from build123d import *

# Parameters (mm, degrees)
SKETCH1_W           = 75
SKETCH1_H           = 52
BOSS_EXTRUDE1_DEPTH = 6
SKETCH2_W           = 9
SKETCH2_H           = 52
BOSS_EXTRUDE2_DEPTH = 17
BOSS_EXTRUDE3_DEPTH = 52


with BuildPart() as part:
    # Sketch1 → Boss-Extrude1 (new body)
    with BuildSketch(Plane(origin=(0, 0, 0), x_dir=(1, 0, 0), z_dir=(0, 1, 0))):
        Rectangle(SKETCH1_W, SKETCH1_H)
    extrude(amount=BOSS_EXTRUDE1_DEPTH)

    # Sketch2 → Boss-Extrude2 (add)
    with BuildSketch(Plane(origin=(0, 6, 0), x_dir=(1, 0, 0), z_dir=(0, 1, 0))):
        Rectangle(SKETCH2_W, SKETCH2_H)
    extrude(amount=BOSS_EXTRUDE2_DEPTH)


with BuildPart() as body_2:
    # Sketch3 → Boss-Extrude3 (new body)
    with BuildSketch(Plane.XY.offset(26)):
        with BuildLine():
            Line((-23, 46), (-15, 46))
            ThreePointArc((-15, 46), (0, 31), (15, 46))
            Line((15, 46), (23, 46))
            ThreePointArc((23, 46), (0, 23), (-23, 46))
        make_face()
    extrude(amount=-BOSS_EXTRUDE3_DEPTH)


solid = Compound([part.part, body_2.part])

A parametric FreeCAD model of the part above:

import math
import FreeCAD as App
import Part
import Sketcher

V = App.Vector

doc = App.newDocument("Part")
body = doc.addObject("PartDesign::Body", "Body")

# Sketch on XZ plane
sketch1 = body.newObject("Sketcher::SketchObject", "Sketch")
sketch1.AttachmentSupport = (doc.getObject("XZ_Plane"), [""])
sketch1.MapMode = "FlatFace"
sketch1.addGeometry(Part.LineSegment(V(-38, -26, 0), V(-38, 26, 0)), False)
sketch1.addGeometry(Part.LineSegment(V(-38, 26, 0), V(38, 26, 0)), False)
sketch1.addGeometry(Part.LineSegment(V(38, 26, 0), V(38, -26, 0)), False)
sketch1.addGeometry(Part.LineSegment(V(38, -26, 0), V(-38, -26, 0)), False)
sketch1.addConstraint(Sketcher.Constraint("Coincident", 0, 2, 1, 1))
sketch1.addConstraint(Sketcher.Constraint("Coincident", 1, 2, 2, 1))
sketch1.addConstraint(Sketcher.Constraint("Coincident", 2, 2, 3, 1))
sketch1.addConstraint(Sketcher.Constraint("Coincident", 3, 2, 0, 1))
sketch1.addConstraint(Sketcher.Constraint("Vertical", 0))
sketch1.addConstraint(Sketcher.Constraint("Horizontal", 1))
sketch1.addConstraint(Sketcher.Constraint("Vertical", 2))
sketch1.addConstraint(Sketcher.Constraint("Horizontal", 3))
sketch1.addConstraint(Sketcher.Constraint("Symmetric", 0, 2, 2, 2, -1, 1))
sketch1.addConstraint(Sketcher.Constraint("DistanceX", 1, 1, 1, 2, 75.0))
sketch1.addConstraint(Sketcher.Constraint("DistanceY", 0, 1, 0, 2, 52.0))
pad1 = body.newObject("PartDesign::Pad", "Pad")
pad1.Profile = sketch1
pad1.Length = 6
pad1.Reversed = True

# Sketch on XZ plane
sketch2 = body.newObject("Sketcher::SketchObject", "Sketch001")
sketch2.AttachmentSupport = (doc.getObject("XZ_Plane"), [""])
sketch2.MapMode = "FlatFace"
sketch2.AttachmentOffset = App.Placement(V(0, 0, -6), App.Rotation())
sketch2.addGeometry(Part.LineSegment(V(-4, -26, 0), V(-4, 26, 0)), False)
sketch2.addGeometry(Part.LineSegment(V(-4, 26, 0), V(4, 26, 0)), False)
sketch2.addGeometry(Part.LineSegment(V(4, 26, 0), V(4, -26, 0)), False)
sketch2.addGeometry(Part.LineSegment(V(4, -26, 0), V(-4, -26, 0)), False)
sketch2.addConstraint(Sketcher.Constraint("Coincident", 0, 2, 1, 1))
sketch2.addConstraint(Sketcher.Constraint("Coincident", 1, 2, 2, 1))
sketch2.addConstraint(Sketcher.Constraint("Coincident", 2, 2, 3, 1))
sketch2.addConstraint(Sketcher.Constraint("Coincident", 3, 2, 0, 1))
sketch2.addConstraint(Sketcher.Constraint("Vertical", 0))
sketch2.addConstraint(Sketcher.Constraint("Horizontal", 1))
sketch2.addConstraint(Sketcher.Constraint("Vertical", 2))
sketch2.addConstraint(Sketcher.Constraint("Horizontal", 3))
sketch2.addConstraint(Sketcher.Constraint("Symmetric", 0, 2, 2, 2, -1, 1))
sketch2.addConstraint(Sketcher.Constraint("DistanceX", 1, 1, 1, 2, 9.0))
sketch2.addConstraint(Sketcher.Constraint("DistanceY", 0, 1, 0, 2, 52.0))
pad2 = body.newObject("PartDesign::Pad", "Pad001")
pad2.Profile = sketch2
pad2.Length = 17
pad2.Reversed = True
body2 = doc.addObject("PartDesign::Body", "Body001")

# Sketch on XY plane
sketch3 = body2.newObject("Sketcher::SketchObject", "Sketch002")
sketch3.AttachmentSupport = (doc.getObject("XY_Plane001"), [""])
sketch3.MapMode = "FlatFace"
sketch3.AttachmentOffset = App.Placement(V(0, 0, 26), App.Rotation())
sketch3.addGeometry(Part.LineSegment(V(-15, 46, 0), V(-23, 46, 0)), False)
sketch3.addGeometry(Part.ArcOfCircle(Part.Circle(V(0, 46, 0), V(0, 0, 1), 23), math.radians(180), math.radians(360)), False)
sketch3.addGeometry(Part.LineSegment(V(23, 46, 0), V(15, 46, 0)), False)
sketch3.addGeometry(Part.ArcOfCircle(Part.Circle(V(0, 46, 0), V(0, 0, 1), 15), math.radians(180), math.radians(360)), False)
sketch3.addConstraint(Sketcher.Constraint("Coincident", 0, 2, 1, 1))
sketch3.addConstraint(Sketcher.Constraint("Coincident", 1, 2, 2, 1))
sketch3.addConstraint(Sketcher.Constraint("Coincident", 2, 2, 3, 2))
sketch3.addConstraint(Sketcher.Constraint("Coincident", 3, 1, 0, 1))
sketch3.addConstraint(Sketcher.Constraint("Horizontal", 0))
sketch3.addConstraint(Sketcher.Constraint("Horizontal", 2))
sketch3.addConstraint(Sketcher.Constraint("Coincident", 3, 3, 1, 3))
sketch3.addConstraint(Sketcher.Constraint("Symmetric", 0, 2, 1, 2, -2))
sketch3.addConstraint(Sketcher.Constraint("Horizontal", 3, 3, 0, 2))
sketch3.addConstraint(Sketcher.Constraint("Radius", 1, 23.0))
sketch3.addConstraint(Sketcher.Constraint("Radius", 3, 15.0))
sketch3.addConstraint(Sketcher.Constraint("DistanceY", -1, 1, 1, 3, 46.0))
pad3 = body2.newObject("PartDesign::Pad", "Pad002")
pad3.Profile = sketch3
pad3.Length = 52
pad3.Reversed = True

doc.recompute()
